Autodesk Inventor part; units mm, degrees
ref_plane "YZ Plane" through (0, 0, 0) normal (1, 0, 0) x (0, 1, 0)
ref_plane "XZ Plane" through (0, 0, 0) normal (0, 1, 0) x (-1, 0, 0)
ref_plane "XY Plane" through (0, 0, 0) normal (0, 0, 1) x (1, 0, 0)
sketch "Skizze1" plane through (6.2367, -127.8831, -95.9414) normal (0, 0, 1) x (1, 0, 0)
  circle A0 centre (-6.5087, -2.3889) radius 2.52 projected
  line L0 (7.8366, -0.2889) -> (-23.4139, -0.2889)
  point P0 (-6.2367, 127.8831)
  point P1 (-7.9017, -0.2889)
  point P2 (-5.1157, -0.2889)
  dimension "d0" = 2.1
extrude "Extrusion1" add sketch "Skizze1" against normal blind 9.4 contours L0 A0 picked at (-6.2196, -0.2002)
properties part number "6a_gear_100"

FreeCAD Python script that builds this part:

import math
import FreeCAD as App
import Part
import Sketcher
from FreeCAD import Vector
Q = App.Units.Quantity

doc = App.newDocument("Part")
params = doc.addObject("Spreadsheet::Sheet", "Params")
for row, (alias, value) in enumerate([
    ("sketch1_radius", "2.52 mm"),
    ("pad1_length", "9.4 mm"),
], start=1):
    params.set(f"A{row}", alias)
    params.set(f"B{row}", "=" + value)
    params.setAlias(f"B{row}", alias)

body = doc.addObject("PartDesign::Body", "Body")

sketch1 = doc.addObject("Sketcher::SketchObject", "Sketch")
body.addObject(sketch1)
sketch1.AttachmentSupport = (doc.XY_Plane, [""])
sketch1.MapMode = "FlatFace"
sketch1.AttachmentOffset = App.Placement(Vector(0, 0, -95.9414), App.Rotation())
sketch1.addGeometry([
    Part.LineSegment(Vector(-1.7, -128.2, 0), Vector(1.1, -128.2, 0)),
    Part.ArcOfCircle(Part.Circle(Vector(-0.3, -130.3, 0), Vector(0, 0, 1), 2.5), math.radians(56), math.radians(124)),
], False)
sketch1.addConstraint([
    Sketcher.Constraint("Coincident", 0, 1, 1, 2),
    Sketcher.Constraint("Coincident", 1, 1, 0, 2),
    Sketcher.Constraint("Horizontal", 0),
    Sketcher.Constraint("DistanceY", 1, 3, 0, 1, Q("2.1 mm")),
    Sketcher.Constraint("Radius", 1, Q("2.52 mm")),
    Sketcher.Constraint("DistanceX", 1, 3, -1, 1, Q("0.272 mm")),
    Sketcher.Constraint("DistanceY", 1, 3, -1, 1, Q("130.272 mm")),
])
sketch1.setExpression("Constraints[4]", "Params.sketch1_radius")
pad1 = doc.addObject("PartDesign::Pad", "Pad")
body.addObject(pad1)
pad1.Profile = sketch1
pad1.setExpression("Length", "Params.pad1_length")
pad1.Reversed = True

doc.recompute()
